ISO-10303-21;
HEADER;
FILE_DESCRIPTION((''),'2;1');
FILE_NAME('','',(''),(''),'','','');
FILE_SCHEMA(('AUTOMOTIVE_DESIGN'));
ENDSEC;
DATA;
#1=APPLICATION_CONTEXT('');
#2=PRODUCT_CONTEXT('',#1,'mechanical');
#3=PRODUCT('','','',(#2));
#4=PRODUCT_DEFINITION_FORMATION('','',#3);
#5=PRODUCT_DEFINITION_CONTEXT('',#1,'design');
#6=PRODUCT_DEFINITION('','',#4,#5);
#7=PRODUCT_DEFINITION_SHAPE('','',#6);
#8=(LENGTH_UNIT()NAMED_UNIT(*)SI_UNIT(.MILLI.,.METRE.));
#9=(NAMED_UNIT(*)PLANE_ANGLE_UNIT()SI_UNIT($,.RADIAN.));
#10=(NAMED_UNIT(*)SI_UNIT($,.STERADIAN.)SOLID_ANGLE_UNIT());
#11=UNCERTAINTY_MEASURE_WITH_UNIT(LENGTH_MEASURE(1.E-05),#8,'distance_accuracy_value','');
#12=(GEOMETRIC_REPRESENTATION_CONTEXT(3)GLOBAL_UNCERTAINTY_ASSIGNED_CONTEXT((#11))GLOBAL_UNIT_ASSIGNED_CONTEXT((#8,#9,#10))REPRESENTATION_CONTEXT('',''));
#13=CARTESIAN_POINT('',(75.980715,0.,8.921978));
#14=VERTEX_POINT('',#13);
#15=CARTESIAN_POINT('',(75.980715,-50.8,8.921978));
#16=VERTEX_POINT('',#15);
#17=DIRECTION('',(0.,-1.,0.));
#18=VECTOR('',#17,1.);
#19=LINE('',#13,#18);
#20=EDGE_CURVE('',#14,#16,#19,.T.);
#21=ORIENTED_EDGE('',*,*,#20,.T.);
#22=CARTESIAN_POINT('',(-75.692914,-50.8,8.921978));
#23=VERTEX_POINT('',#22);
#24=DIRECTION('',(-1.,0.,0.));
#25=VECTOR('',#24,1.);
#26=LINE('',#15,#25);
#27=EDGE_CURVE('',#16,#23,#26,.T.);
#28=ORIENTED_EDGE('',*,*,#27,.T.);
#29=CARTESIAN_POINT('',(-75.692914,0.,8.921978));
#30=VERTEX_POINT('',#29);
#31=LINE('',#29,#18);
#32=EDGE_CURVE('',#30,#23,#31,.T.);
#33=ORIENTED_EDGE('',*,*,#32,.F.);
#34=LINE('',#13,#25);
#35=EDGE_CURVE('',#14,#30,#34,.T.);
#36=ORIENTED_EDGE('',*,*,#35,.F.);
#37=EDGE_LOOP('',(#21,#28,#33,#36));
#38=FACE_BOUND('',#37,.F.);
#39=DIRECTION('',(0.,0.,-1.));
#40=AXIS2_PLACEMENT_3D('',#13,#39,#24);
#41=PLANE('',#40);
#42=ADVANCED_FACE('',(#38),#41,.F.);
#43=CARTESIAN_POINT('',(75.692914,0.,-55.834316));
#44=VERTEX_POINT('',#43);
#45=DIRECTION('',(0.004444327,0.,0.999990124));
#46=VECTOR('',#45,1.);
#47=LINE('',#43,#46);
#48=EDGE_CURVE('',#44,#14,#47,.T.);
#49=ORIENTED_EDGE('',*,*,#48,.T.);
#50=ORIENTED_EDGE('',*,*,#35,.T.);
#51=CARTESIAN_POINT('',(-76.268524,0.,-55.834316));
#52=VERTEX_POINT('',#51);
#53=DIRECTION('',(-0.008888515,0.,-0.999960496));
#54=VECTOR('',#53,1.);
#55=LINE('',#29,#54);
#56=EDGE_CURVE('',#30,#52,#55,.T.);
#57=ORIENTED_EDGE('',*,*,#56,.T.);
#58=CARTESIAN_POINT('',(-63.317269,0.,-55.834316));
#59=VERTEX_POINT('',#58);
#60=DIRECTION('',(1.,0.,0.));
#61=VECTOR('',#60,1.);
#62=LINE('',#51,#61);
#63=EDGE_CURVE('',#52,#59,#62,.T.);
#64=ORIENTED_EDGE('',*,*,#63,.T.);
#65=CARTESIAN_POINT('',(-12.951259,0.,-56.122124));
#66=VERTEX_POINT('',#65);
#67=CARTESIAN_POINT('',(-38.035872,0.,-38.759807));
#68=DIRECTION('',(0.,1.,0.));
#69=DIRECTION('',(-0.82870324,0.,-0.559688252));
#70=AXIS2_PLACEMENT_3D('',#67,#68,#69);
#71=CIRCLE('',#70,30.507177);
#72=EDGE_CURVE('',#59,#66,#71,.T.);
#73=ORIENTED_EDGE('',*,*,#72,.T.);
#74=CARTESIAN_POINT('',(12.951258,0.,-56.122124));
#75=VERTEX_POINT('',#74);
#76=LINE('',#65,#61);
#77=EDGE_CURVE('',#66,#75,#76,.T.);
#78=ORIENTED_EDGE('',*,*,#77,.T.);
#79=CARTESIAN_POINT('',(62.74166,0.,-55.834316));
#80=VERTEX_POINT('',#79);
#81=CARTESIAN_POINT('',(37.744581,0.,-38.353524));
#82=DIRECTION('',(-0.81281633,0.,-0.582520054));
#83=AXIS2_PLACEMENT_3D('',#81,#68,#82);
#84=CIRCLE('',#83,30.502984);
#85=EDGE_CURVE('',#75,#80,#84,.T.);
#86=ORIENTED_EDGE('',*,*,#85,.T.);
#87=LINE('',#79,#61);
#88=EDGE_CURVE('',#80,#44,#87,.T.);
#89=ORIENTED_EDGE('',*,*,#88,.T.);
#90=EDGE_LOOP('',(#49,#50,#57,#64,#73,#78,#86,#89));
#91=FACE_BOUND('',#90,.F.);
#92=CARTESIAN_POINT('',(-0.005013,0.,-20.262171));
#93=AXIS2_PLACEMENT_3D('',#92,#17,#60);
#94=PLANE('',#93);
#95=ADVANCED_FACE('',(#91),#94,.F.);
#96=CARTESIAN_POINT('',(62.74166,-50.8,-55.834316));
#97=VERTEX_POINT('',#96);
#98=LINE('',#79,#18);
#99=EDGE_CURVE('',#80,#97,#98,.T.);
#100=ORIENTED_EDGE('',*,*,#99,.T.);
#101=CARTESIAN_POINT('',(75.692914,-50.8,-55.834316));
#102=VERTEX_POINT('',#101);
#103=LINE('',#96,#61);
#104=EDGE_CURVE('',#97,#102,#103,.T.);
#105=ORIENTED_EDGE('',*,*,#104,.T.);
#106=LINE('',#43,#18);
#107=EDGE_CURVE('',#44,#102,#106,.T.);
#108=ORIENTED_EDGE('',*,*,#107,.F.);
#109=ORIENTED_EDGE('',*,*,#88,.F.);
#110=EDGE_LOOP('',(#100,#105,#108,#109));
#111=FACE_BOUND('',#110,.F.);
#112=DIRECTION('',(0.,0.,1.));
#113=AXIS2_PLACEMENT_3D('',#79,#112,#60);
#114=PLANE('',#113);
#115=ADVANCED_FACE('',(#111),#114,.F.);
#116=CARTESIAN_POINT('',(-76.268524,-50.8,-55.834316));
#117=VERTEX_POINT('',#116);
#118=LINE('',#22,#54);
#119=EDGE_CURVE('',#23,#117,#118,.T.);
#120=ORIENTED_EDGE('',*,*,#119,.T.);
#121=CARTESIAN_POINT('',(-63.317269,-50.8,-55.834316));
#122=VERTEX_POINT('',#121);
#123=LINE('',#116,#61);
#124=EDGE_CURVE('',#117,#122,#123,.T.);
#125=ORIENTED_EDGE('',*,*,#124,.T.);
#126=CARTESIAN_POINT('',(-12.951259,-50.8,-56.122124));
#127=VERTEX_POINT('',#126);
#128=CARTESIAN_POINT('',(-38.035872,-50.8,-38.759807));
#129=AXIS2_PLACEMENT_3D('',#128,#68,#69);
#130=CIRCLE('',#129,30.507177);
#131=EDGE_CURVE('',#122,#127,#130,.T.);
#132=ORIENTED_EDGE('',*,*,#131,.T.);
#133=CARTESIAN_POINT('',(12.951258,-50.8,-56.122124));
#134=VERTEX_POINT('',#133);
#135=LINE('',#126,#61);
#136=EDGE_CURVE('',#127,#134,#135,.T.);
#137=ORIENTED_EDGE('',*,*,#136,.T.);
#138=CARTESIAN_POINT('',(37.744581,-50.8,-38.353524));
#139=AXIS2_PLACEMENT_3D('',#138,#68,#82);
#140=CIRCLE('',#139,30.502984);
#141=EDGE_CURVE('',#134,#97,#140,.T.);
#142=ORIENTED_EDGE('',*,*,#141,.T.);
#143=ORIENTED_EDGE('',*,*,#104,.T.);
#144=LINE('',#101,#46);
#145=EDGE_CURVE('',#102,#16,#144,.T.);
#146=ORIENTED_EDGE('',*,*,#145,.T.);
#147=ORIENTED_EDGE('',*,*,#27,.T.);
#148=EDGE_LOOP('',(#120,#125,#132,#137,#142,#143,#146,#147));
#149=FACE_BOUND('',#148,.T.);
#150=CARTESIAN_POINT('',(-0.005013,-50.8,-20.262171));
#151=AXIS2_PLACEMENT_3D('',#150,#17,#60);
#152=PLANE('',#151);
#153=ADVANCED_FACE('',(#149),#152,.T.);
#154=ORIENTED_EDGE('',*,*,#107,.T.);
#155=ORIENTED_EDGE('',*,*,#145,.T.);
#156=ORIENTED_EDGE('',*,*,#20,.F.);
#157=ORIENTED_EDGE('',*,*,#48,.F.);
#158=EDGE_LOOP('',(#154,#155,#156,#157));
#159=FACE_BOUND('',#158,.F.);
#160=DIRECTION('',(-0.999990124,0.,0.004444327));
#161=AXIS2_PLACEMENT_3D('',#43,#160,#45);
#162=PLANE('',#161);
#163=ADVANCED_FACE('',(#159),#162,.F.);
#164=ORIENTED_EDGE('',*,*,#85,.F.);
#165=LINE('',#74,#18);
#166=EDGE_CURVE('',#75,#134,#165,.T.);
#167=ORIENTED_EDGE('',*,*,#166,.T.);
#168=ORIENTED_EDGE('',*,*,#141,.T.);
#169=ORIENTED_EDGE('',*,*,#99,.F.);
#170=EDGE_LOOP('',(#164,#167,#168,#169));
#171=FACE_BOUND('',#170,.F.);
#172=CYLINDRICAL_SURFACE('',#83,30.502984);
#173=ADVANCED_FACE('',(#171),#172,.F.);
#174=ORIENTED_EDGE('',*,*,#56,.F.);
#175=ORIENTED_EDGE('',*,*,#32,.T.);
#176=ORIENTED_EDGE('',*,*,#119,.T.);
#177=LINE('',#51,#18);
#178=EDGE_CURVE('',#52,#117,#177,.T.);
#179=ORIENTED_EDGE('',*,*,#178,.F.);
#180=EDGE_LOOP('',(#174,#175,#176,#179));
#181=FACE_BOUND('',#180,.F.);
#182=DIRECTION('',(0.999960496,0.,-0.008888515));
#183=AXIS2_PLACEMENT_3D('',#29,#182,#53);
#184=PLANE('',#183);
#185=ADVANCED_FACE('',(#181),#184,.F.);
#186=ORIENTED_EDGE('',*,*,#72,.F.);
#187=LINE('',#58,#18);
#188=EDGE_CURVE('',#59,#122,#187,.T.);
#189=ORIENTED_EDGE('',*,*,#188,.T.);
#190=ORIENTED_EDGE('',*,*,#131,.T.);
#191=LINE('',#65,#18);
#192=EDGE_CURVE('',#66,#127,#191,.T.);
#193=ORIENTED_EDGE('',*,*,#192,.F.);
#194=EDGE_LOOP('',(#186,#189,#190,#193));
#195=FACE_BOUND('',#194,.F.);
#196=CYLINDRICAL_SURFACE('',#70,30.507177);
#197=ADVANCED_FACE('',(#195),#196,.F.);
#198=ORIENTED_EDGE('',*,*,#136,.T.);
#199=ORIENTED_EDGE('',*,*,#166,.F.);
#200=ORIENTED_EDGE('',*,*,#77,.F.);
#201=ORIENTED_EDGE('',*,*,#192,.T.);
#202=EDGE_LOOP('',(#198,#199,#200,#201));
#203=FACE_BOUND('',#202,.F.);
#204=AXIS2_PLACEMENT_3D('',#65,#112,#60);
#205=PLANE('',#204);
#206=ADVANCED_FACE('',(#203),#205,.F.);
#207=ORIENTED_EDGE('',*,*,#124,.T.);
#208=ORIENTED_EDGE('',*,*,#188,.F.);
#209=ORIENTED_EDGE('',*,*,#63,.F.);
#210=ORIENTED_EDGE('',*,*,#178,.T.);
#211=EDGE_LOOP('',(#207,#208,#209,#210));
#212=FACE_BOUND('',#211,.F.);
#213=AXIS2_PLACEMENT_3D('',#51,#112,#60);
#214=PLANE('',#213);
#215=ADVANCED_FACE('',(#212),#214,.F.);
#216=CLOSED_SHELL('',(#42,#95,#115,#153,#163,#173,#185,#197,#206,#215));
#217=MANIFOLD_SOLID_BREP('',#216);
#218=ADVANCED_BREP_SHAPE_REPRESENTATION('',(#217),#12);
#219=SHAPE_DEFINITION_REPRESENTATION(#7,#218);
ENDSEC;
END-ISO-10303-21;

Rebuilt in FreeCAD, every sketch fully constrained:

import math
import FreeCAD as App
import Part
import Sketcher

V = App.Vector
Q = App.Units.Quantity

doc = App.newDocument("Part")
body = doc.addObject("PartDesign::Body", "Body")

# Sketch on XZ plane
sketch1 = body.newObject("Sketcher::SketchObject", "Sketch")
sketch1.AttachmentSupport = (doc.getObject("XZ_Plane"), [""])
sketch1.MapMode = "FlatFace"
sketch1.addGeometry([
    Part.LineSegment(V(76, 9, 0), V(-76, 9, 0)),  # 0
    Part.LineSegment(V(-76, 9, 0), V(-76, -56, 0)),  # 1
    Part.LineSegment(V(-76, -56, 0), V(-63, -56, 0)),  # 2
    Part.ArcOfCircle(Part.Circle(V(-38, -39, 0), V(0, 0, 1), 31), math.radians(-35), math.radians(214)),  # 3
    Part.LineSegment(V(-13, -56, 0), V(13, -56, 0)),  # 4
    Part.ArcOfCircle(Part.Circle(V(38, -38, 0), V(0, 0, 1), 31), math.radians(-35), math.radians(216)),  # 5
    Part.LineSegment(V(63, -56, 0), V(76, -56, 0)),  # 6
    Part.LineSegment(V(76, -56, 0), V(76, 9, 0)),  # 7
], False)
sketch1.addConstraint([
    Sketcher.Constraint("Coincident", 0, 2, 1, 1),
    Sketcher.Constraint("Coincident", 1, 2, 2, 1),
    Sketcher.Constraint("Coincident", 2, 2, 3, 2),
    Sketcher.Constraint("Coincident", 3, 1, 4, 1),
    Sketcher.Constraint("Coincident", 4, 2, 5, 2),
    Sketcher.Constraint("Coincident", 5, 1, 6, 1),
    Sketcher.Constraint("Coincident", 6, 2, 7, 1),
    Sketcher.Constraint("Coincident", 7, 2, 0, 1),
    Sketcher.Constraint("Horizontal", 0),
    Sketcher.Constraint("Horizontal", 2),
    Sketcher.Constraint("Horizontal", 4),
    Sketcher.Constraint("Horizontal", 6),
    Sketcher.Constraint("Horizontal", 2, 2, 5, 1),
    Sketcher.Constraint("Equal", 2, 6),
    Sketcher.Constraint("Radius", 3, 30.507177),
    Sketcher.Constraint("Radius", 5, 30.502984),
    Sketcher.Constraint("DistanceX", 0, 2, 0, 1, 151.673629),
    Sketcher.Constraint("DistanceY", 3, 1, 5, 3, 17.7686),
    Sketcher.Constraint("DistanceX", 4, 2, 5, 1, 49.790402),
    Sketcher.Constraint("DistanceX", 6, 2, 7, 2, 0.287801),
    Sketcher.Constraint("DistanceY", 4, 2, 7, 2, 65.044102),
    Sketcher.Constraint("DistanceX", 2, 1, 2, 2, 12.951255),
    Sketcher.Constraint("DistanceX", 4, 1, 4, 2, 25.902517),
    Sketcher.Constraint("DistanceX", -1, 1, 5, 3, 37.744581),
    Sketcher.Constraint("DistanceX", 2, 2, -1, 1, 63.317269),
    Sketcher.Constraint("DistanceY", 3, 3, -1, 1, 38.759807),
])
pad1 = body.newObject("PartDesign::Pad", "Pad")
pad1.Profile = sketch1
pad1.Length = Q("2 in")

doc.recompute()
